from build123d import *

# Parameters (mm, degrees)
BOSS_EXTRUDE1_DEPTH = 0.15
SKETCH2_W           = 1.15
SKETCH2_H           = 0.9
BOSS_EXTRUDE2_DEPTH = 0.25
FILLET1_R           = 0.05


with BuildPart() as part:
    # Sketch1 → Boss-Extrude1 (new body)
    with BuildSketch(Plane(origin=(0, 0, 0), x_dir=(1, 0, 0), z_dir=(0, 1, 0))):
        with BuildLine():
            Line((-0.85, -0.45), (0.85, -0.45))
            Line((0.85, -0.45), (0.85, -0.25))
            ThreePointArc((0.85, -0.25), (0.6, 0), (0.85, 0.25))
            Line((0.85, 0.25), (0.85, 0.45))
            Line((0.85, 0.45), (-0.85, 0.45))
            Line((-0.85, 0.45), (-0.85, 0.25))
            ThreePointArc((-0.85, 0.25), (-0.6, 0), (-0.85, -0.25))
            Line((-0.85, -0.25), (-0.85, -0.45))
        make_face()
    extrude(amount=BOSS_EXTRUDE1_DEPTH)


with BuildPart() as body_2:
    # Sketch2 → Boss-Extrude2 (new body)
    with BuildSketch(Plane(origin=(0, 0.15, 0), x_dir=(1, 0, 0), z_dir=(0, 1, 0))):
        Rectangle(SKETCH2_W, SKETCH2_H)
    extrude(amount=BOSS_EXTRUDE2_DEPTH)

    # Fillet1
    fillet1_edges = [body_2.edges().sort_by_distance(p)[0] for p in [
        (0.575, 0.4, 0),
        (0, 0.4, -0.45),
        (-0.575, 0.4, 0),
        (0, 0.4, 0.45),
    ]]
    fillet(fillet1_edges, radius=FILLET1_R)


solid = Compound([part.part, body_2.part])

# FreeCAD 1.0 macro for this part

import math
import FreeCAD as App
import Part
import Sketcher
Q = App.Units.Quantity


def edges_at(feature, points):
    """Names of the edges that pass closest to the given points."""
    edges = feature.Shape.Edges
    near = lambda p: min(range(len(edges)), key=lambda i: edges[i].distToShape(Part.Vertex(*p))[0])
    return sorted({f"Edge{near(p) + 1}" for p in points})


def add_polygon(sketch, points):
    """Adds a closed chain of lines whose ends are joined by coincident constraints."""
    first, n = sketch.GeometryCount, len(points)
    for a, b in zip(points, points[1:] + points[:1]):
        sketch.addGeometry(Part.LineSegment(App.Vector(*a, 0), App.Vector(*b, 0)), False)
    for i in range(n):
        sketch.addConstraint(Sketcher.Constraint("Coincident", first + i, 2, first + (i + 1) % n, 1))

doc = App.newDocument("Part")
body = doc.addObject("PartDesign::Body", "Body")

# Sketch on XZ plane
sketch1 = doc.addObject("Sketcher::SketchObject", "Sketch")
body.addObject(sketch1)
sketch1.AttachmentSupport = (doc.XZ_Plane, [""])
sketch1.MapMode = "FlatFace"
sketch1.addGeometry(Part.LineSegment(App.Vector(-0.85, 0.45, 0), App.Vector(0.85, 0.45, 0)), False)
sketch1.addGeometry(Part.LineSegment(App.Vector(0.85, 0.45, 0), App.Vector(0.85, 0.25, 0)), False)
sketch1.addGeometry(Part.ArcOfCircle(Part.Circle(App.Vector(0.85, 0, 0), App.Vector(0, 0, 1), 0.25), math.radians(90), math.radians(270)), False)
sketch1.addGeometry(Part.LineSegment(App.Vector(0.85, -0.25, 0), App.Vector(0.85, -0.45, 0)), False)
sketch1.addGeometry(Part.LineSegment(App.Vector(0.85, -0.45, 0), App.Vector(-0.85, -0.45, 0)), False)
sketch1.addGeometry(Part.LineSegment(App.Vector(-0.85, -0.45, 0), App.Vector(-0.85, -0.25, 0)), False)
sketch1.addGeometry(Part.ArcOfCircle(Part.Circle(App.Vector(-0.85, 0, 0), App.Vector(0, 0, 1), 0.25), math.radians(-90), math.radians(90)), False)
sketch1.addGeometry(Part.LineSegment(App.Vector(-0.85, 0.25, 0), App.Vector(-0.85, 0.45, 0)), False)
sketch1.addConstraint(Sketcher.Constraint("Coincident", 0, 2, 1, 1))
sketch1.addConstraint(Sketcher.Constraint("Coincident", 1, 2, 2, 1))
sketch1.addConstraint(Sketcher.Constraint("Coincident", 2, 2, 3, 1))
sketch1.addConstraint(Sketcher.Constraint("Coincident", 3, 2, 4, 1))
sketch1.addConstraint(Sketcher.Constraint("Coincident", 4, 2, 5, 1))
sketch1.addConstraint(Sketcher.Constraint("Coincident", 5, 2, 6, 1))
sketch1.addConstraint(Sketcher.Constraint("Coincident", 6, 2, 7, 1))
sketch1.addConstraint(Sketcher.Constraint("Coincident", 7, 2, 0, 1))
sketch1.addConstraint(Sketcher.Constraint("Horizontal", 0))
sketch1.addConstraint(Sketcher.Constraint("Vertical", 1))
sketch1.addConstraint(Sketcher.Constraint("Vertical", 3))
sketch1.addConstraint(Sketcher.Constraint("Horizontal", 4))
sketch1.addConstraint(Sketcher.Constraint("Vertical", 5))
sketch1.addConstraint(Sketcher.Constraint("Vertical", 7))
sketch1.addConstraint(Sketcher.Constraint("Equal", 2, 6))
sketch1.addConstraint(Sketcher.Constraint("Symmetric", 2, 3, 6, 3, -1, 1))
sketch1.addConstraint(Sketcher.Constraint("Symmetric", 0, 2, 4, 2, -1, 1))
sketch1.addConstraint(Sketcher.Constraint("Symmetric", 2, 2, 5, 2, -2))
sketch1.addConstraint(Sketcher.Constraint("Vertical", 2, 3, 0, 2))
sketch1.addConstraint(Sketcher.Constraint("Vertical", 5, 2, 6, 2))
sketch1.addConstraint(Sketcher.Constraint("Radius", 2, Q("0.25 mm")))
sketch1.addConstraint(Sketcher.Constraint("DistanceX", 0, 1, 0, 2, Q("1.7 mm")))
sketch1.addConstraint(Sketcher.Constraint("DistanceY", 1, 2, 1, 1, Q("0.2 mm")))
pad1 = doc.addObject("PartDesign::Pad", "Pad")
body.addObject(pad1)
pad1.Profile = sketch1
pad1.Length = 0.15
pad1.Reversed = True
body2 = doc.addObject("PartDesign::Body", "Body001")

# Sketch on XZ plane
sketch2 = doc.addObject("Sketcher::SketchObject", "Sketch001")
body2.addObject(sketch2)
sketch2.AttachmentSupport = (doc.getObject("XZ_Plane001"), [""])
sketch2.MapMode = "FlatFace"
sketch2.AttachmentOffset = App.Placement(App.Vector(0, 0, -0.15), App.Rotation())
add_polygon(sketch2, [(-0.575, -0.45), (-0.575, 0.45), (0.575, 0.45), (0.575, -0.45)])  # lines 0-3
sketch2.addConstraint(Sketcher.Constraint("Vertical", 0))
sketch2.addConstraint(Sketcher.Constraint("Horizontal", 1))
sketch2.addConstraint(Sketcher.Constraint("Vertical", 2))
sketch2.addConstraint(Sketcher.Constraint("Horizontal", 3))
sketch2.addConstraint(Sketcher.Constraint("Symmetric", 0, 2, 2, 2, -1, 1))
sketch2.addConstraint(Sketcher.Constraint("DistanceY", 0, 1, 0, 2, Q("0.9 mm")))
sketch2.addConstraint(Sketcher.Constraint("DistanceX", 1, 1, 1, 2, Q("1.15 mm")))
pad2 = doc.addObject("PartDesign::Pad", "Pad001")
body2.addObject(pad2)
pad2.Profile = sketch2
pad2.Length = 0.25
pad2.Reversed = True
doc.recompute()

fillet = doc.addObject("PartDesign::Fillet", "Fillet")
body2.addObject(fillet)
fillet.Base = (pad2, edges_at(pad2, [
    (0.575, 0.4, 0),
    (0, 0.4, -0.45),
    (-0.575, 0.4, 0),
    (0, 0.4, 0.45),
]))
fillet.Radius = 0.05

doc.recompute()
